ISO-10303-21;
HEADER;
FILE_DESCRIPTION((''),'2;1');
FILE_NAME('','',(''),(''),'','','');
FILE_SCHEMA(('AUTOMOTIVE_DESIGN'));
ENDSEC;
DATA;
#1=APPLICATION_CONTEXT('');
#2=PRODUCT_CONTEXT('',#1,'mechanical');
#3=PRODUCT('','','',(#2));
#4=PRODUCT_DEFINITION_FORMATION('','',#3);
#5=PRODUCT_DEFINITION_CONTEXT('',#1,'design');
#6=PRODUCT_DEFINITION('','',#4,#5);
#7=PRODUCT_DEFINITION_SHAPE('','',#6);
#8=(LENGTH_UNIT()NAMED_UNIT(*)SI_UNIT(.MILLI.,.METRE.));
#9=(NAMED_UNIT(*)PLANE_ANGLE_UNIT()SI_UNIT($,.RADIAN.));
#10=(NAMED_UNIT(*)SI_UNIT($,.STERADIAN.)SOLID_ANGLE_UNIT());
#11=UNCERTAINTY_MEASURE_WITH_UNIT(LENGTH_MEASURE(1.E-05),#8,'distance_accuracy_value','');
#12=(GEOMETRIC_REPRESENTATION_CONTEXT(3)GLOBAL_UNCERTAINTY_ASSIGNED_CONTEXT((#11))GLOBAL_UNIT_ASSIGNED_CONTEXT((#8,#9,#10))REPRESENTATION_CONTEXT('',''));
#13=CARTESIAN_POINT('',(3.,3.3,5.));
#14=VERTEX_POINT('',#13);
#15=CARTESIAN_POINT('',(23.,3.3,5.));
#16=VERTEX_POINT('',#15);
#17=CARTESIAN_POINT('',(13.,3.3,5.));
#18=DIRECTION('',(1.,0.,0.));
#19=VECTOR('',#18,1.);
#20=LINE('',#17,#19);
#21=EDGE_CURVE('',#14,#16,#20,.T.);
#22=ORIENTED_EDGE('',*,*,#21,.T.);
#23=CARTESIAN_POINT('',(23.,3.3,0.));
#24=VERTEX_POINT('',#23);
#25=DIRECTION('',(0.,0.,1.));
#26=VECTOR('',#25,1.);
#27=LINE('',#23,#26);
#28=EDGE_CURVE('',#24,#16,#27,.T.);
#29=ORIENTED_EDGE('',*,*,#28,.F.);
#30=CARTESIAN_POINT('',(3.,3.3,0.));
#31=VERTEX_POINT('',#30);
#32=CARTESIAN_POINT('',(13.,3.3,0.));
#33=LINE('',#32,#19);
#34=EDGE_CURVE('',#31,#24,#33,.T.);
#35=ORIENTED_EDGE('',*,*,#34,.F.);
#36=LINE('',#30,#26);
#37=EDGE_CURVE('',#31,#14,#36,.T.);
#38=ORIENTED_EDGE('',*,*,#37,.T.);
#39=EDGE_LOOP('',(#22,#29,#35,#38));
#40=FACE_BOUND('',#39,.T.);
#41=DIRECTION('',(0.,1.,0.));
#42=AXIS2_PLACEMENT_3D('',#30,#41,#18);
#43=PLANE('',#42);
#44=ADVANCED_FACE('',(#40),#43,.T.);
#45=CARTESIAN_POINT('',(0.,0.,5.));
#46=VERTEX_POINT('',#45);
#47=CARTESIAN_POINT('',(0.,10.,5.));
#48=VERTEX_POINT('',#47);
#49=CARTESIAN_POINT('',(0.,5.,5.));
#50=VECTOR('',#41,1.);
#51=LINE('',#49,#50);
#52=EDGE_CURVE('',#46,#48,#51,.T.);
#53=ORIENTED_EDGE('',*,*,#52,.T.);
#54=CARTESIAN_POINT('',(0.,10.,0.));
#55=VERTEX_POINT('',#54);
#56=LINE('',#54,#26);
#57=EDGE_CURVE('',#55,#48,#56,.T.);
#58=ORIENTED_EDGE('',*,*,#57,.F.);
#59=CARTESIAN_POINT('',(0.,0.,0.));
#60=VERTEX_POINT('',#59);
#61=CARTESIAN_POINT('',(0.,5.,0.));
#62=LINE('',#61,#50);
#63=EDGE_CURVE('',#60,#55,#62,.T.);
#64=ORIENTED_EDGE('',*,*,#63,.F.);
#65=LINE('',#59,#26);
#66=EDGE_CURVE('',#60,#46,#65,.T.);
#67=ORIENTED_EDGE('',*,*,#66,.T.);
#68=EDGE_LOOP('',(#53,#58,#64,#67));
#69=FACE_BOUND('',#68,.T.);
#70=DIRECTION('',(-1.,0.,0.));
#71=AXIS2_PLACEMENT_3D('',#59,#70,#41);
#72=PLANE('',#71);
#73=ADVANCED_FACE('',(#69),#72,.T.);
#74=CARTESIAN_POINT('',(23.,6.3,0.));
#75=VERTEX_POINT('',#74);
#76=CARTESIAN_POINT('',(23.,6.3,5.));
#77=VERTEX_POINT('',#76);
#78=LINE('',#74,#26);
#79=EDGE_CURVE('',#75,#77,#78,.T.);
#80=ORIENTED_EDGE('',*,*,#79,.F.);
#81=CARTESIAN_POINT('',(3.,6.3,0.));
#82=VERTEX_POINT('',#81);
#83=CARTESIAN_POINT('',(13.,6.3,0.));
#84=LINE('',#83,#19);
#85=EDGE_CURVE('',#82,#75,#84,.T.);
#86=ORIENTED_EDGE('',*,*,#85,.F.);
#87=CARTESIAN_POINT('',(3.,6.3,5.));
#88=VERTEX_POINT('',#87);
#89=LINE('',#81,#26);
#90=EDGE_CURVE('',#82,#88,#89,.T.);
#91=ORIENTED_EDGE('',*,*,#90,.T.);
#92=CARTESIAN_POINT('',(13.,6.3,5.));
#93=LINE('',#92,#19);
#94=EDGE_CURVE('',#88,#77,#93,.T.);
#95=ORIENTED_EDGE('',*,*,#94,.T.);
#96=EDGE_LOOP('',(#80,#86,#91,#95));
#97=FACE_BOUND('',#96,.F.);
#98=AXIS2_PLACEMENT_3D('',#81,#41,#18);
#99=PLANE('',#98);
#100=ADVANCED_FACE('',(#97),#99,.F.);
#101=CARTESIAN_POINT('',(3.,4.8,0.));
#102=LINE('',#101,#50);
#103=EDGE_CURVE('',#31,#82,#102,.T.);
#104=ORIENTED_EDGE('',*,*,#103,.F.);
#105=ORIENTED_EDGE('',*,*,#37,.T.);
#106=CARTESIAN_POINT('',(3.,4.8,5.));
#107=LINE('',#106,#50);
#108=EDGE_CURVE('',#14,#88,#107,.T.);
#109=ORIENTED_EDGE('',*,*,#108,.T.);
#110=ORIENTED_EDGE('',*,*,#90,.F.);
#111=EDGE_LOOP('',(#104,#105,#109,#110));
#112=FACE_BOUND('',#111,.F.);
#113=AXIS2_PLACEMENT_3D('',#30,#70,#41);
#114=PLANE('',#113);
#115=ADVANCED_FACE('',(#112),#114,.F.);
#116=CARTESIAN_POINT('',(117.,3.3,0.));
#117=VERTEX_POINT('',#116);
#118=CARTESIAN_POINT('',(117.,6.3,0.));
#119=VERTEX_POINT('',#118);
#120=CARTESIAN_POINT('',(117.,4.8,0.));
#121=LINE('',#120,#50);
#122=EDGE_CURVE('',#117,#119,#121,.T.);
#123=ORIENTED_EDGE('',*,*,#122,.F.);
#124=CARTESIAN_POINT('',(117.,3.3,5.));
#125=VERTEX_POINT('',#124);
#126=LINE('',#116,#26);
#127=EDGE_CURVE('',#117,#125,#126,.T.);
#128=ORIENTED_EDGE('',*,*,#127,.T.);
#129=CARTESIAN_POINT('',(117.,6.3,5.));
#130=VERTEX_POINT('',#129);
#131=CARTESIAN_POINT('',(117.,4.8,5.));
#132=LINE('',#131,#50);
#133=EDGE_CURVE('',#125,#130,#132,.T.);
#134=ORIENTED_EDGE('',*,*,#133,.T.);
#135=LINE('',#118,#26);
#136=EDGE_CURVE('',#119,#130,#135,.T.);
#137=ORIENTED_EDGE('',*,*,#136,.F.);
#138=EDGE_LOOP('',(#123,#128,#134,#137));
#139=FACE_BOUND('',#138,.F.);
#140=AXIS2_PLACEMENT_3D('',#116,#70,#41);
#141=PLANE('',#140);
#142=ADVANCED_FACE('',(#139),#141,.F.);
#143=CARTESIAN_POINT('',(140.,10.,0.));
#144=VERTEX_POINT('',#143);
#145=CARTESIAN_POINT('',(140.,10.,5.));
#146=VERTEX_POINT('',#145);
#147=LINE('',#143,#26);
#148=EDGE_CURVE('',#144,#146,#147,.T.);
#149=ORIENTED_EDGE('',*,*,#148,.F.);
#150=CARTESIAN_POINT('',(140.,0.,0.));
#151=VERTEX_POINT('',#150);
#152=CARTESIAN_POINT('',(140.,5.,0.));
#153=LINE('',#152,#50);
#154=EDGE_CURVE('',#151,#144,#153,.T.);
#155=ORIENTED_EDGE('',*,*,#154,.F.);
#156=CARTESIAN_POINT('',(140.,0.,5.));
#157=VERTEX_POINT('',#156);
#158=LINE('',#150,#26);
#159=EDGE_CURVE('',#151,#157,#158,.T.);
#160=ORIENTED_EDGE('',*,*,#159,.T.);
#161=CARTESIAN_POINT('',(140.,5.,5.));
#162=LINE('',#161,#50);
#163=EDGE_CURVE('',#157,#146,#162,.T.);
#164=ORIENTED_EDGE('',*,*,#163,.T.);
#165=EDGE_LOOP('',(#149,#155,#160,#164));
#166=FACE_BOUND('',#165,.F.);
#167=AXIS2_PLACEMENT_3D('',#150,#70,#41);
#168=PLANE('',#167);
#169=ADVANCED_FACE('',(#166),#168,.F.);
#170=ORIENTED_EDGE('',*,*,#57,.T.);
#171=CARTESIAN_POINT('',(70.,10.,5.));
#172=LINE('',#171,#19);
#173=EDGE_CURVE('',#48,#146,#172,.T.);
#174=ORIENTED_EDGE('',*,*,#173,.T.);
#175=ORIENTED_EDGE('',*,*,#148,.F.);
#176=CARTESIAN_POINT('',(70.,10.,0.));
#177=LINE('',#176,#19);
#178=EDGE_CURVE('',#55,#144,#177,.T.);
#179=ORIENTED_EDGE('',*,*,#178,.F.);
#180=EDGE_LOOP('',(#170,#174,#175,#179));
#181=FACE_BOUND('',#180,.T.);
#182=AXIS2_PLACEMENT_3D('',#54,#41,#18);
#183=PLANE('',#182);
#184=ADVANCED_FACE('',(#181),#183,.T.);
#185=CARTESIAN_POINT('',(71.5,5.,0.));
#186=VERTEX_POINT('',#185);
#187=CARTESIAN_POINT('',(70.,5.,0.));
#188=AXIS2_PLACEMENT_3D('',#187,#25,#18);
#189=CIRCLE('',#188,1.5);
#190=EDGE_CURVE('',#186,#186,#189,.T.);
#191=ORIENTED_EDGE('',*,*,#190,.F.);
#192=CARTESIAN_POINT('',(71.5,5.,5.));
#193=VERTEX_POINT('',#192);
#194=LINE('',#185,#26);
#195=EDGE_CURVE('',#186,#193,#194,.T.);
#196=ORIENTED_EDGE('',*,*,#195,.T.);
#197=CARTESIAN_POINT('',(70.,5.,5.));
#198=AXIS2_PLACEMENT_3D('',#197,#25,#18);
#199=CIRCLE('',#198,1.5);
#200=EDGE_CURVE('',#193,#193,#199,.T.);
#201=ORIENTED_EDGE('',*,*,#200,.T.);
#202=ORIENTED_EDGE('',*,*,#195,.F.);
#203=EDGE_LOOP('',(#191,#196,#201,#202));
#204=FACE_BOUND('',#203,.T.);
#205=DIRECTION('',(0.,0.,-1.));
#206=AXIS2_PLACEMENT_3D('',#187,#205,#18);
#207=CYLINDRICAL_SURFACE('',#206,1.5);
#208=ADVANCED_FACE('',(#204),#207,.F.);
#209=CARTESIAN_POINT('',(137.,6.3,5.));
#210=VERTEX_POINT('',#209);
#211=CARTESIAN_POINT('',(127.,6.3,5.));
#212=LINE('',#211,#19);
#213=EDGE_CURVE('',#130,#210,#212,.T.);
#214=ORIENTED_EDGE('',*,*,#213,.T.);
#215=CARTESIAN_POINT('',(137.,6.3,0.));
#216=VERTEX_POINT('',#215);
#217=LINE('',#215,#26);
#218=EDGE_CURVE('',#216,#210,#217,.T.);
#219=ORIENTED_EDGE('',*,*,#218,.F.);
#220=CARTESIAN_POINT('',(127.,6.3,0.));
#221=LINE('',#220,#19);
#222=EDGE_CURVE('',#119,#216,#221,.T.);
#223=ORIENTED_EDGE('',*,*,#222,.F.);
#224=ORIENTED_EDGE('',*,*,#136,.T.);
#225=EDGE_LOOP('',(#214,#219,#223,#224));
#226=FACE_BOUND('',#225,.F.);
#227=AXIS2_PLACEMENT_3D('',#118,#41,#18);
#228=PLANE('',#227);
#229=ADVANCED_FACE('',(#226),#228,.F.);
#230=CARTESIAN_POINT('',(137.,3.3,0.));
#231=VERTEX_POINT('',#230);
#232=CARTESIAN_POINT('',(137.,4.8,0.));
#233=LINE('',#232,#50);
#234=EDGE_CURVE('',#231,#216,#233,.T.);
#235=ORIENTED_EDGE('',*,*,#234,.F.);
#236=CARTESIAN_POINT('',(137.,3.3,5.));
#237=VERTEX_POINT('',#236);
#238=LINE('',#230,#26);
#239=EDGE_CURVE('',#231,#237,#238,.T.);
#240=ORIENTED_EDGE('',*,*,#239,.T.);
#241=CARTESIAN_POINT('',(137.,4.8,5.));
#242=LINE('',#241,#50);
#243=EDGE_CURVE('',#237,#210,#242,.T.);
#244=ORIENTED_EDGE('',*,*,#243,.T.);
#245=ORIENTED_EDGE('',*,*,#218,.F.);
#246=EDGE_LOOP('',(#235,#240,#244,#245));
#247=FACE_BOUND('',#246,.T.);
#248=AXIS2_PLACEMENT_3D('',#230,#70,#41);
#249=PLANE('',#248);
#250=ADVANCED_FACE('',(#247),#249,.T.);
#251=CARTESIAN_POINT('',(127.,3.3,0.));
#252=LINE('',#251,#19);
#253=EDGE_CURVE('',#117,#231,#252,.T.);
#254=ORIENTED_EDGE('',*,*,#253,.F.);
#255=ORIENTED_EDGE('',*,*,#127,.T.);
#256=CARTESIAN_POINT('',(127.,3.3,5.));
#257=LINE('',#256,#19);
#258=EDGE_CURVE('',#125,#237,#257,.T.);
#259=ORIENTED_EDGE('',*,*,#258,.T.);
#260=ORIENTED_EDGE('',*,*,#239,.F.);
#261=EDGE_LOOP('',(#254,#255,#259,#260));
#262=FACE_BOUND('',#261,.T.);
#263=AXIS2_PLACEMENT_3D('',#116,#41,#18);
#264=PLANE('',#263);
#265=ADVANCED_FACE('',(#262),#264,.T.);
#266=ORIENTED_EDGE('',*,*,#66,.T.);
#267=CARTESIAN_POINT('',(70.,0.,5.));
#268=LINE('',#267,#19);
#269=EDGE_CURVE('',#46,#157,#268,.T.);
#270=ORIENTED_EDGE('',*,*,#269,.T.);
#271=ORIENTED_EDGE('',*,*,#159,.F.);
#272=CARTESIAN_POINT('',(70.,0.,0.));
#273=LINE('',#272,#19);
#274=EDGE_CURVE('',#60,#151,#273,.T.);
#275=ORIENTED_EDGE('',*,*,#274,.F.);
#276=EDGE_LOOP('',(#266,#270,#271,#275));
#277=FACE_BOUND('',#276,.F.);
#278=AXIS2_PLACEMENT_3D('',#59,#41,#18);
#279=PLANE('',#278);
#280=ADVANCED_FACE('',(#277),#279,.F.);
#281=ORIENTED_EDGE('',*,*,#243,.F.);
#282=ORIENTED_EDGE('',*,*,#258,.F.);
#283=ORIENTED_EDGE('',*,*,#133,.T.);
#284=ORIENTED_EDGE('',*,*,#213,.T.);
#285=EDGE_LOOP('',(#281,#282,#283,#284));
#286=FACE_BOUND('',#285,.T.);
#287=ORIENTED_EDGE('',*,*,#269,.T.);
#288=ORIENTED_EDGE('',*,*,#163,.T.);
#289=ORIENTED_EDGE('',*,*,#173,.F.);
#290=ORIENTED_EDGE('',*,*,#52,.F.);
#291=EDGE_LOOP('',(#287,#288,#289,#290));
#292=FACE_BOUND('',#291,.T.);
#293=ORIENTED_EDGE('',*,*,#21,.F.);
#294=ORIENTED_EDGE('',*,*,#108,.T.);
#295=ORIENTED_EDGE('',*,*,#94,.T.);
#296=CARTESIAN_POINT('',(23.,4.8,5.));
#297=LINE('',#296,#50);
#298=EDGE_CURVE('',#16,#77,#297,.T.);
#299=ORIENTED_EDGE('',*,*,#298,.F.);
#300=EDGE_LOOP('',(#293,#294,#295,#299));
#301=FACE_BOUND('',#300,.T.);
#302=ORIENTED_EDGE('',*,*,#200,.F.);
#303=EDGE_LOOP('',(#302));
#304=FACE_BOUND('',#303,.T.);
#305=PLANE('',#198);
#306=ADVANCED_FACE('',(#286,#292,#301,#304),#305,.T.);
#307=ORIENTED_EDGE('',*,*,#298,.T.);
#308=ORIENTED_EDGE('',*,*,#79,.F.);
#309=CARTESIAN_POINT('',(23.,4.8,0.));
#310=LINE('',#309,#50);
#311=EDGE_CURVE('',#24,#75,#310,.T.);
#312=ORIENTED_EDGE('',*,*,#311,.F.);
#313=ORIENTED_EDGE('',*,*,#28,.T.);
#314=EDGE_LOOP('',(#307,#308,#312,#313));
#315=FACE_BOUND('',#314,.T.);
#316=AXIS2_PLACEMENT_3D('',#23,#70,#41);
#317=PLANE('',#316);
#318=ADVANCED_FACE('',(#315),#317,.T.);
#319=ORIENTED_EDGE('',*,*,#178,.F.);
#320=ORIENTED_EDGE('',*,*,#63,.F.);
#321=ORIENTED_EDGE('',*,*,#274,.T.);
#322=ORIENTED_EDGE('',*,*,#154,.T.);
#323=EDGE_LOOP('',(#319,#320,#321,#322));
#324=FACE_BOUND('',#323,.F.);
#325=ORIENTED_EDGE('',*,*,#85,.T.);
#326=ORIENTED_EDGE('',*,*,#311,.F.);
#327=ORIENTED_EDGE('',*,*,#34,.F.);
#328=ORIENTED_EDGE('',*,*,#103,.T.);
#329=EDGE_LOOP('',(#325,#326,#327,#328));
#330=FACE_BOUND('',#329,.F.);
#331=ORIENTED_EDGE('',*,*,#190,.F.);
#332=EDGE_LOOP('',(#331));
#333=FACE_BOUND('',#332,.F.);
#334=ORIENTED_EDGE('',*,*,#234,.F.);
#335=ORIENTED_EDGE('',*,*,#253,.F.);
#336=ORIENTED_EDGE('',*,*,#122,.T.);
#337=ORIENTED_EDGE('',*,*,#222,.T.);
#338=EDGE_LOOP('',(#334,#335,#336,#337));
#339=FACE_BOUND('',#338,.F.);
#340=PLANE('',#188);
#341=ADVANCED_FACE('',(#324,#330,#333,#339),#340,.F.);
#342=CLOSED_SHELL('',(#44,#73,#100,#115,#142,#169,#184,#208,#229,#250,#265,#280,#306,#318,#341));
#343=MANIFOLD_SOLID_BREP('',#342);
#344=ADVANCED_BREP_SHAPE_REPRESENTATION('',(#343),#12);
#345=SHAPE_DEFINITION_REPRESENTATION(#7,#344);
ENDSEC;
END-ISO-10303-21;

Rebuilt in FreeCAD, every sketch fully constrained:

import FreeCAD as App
import Part
import Sketcher

V = App.Vector

doc = App.newDocument("Part")
body = doc.addObject("PartDesign::Body", "Body")

sketch1 = doc.addObject("Sketcher::SketchObject", "Sketch")
body.addObject(sketch1)
sketch1.AttachmentSupport = (doc.XY_Plane, [""])
sketch1.MapMode = "FlatFace"
sketch1.addGeometry([
    Part.LineSegment(V(0, 10, 0), V(0, 0, 0)),
    Part.LineSegment(V(0, 0, 0), V(140, 0, 0)),
    Part.LineSegment(V(140, 0, 0), V(140, 10, 0)),
    Part.LineSegment(V(140, 10, 0), V(0, 10, 0)),
    Part.LineSegment(V(23, 3.3, 0), V(3, 3.3, 0)),
    Part.LineSegment(V(3, 3.3, 0), V(3, 6.3, 0)),
    Part.LineSegment(V(3, 6.3, 0), V(23, 6.3, 0)),
    Part.LineSegment(V(23, 6.3, 0), V(23, 3.3, 0)),
    Part.LineSegment(V(137, 3.3, 0), V(117, 3.3, 0)),
    Part.LineSegment(V(117, 3.3, 0), V(117, 6.3, 0)),
    Part.LineSegment(V(117, 6.3, 0), V(137, 6.3, 0)),
    Part.LineSegment(V(137, 6.3, 0), V(137, 3.3, 0)),
    Part.Circle(V(70, 5, 0), V(0, 0, 1), 1.5),
], False)
sketch1.addConstraint([
    Sketcher.Constraint("Coincident", 0, 2, 1, 1),
    Sketcher.Constraint("Coincident", 1, 2, 2, 1),
    Sketcher.Constraint("Coincident", 2, 2, 3, 1),
    Sketcher.Constraint("Coincident", 3, 2, 0, 1),
    Sketcher.Constraint("Coincident", 4, 2, 5, 1),
    Sketcher.Constraint("Coincident", 5, 2, 6, 1),
    Sketcher.Constraint("Coincident", 6, 2, 7, 1),
    Sketcher.Constraint("Coincident", 7, 2, 4, 1),
    Sketcher.Constraint("Coincident", 8, 2, 9, 1),
    Sketcher.Constraint("Coincident", 9, 2, 10, 1),
    Sketcher.Constraint("Coincident", 10, 2, 11, 1),
    Sketcher.Constraint("Coincident", 11, 2, 8, 1),
    Sketcher.Constraint("Vertical", 0),
    Sketcher.Constraint("Horizontal", 1),
    Sketcher.Constraint("Vertical", 2),
    Sketcher.Constraint("Horizontal", 3),
    Sketcher.Constraint("Horizontal", 4),
    Sketcher.Constraint("Vertical", 5),
    Sketcher.Constraint("Horizontal", 6),
    Sketcher.Constraint("Vertical", 7),
    Sketcher.Constraint("Horizontal", 8),
    Sketcher.Constraint("Vertical", 9),
    Sketcher.Constraint("Horizontal", 10),
    Sketcher.Constraint("Vertical", 11),
    Sketcher.Constraint("Coincident", 0, 2, -1, 1),
    Sketcher.Constraint("Horizontal", 7, 2, 8, 2),
    Sketcher.Constraint("Horizontal", 6, 2, 9, 2),
    Sketcher.Constraint("Equal", 6, 8),
    Sketcher.Constraint("Diameter", 12, 3.0),
    Sketcher.Constraint("DistanceX", 1, 1, 1, 2, 140.0),
    Sketcher.Constraint("DistanceX", 4, 2, 4, 1, 20.0),
    Sketcher.Constraint("DistanceY", 0, 2, 0, 1, 10.0),
    Sketcher.Constraint("DistanceY", 5, 1, 5, 2, 3.0),
    Sketcher.Constraint("DistanceX", -1, 1, 12, 3, 70.0),
    Sketcher.Constraint("DistanceY", -1, 1, 12, 3, 5.0),
    Sketcher.Constraint("DistanceX", -1, 1, 4, 2, 3.0),
    Sketcher.Constraint("DistanceX", -1, 1, 8, 2, 117.0),
    Sketcher.Constraint("DistanceY", -1, 1, 4, 2, 3.3),
])
pad1 = doc.addObject("PartDesign::Pad", "Pad")
body.addObject(pad1)
pad1.Profile = sketch1
pad1.Length = 5

doc.recompute()
